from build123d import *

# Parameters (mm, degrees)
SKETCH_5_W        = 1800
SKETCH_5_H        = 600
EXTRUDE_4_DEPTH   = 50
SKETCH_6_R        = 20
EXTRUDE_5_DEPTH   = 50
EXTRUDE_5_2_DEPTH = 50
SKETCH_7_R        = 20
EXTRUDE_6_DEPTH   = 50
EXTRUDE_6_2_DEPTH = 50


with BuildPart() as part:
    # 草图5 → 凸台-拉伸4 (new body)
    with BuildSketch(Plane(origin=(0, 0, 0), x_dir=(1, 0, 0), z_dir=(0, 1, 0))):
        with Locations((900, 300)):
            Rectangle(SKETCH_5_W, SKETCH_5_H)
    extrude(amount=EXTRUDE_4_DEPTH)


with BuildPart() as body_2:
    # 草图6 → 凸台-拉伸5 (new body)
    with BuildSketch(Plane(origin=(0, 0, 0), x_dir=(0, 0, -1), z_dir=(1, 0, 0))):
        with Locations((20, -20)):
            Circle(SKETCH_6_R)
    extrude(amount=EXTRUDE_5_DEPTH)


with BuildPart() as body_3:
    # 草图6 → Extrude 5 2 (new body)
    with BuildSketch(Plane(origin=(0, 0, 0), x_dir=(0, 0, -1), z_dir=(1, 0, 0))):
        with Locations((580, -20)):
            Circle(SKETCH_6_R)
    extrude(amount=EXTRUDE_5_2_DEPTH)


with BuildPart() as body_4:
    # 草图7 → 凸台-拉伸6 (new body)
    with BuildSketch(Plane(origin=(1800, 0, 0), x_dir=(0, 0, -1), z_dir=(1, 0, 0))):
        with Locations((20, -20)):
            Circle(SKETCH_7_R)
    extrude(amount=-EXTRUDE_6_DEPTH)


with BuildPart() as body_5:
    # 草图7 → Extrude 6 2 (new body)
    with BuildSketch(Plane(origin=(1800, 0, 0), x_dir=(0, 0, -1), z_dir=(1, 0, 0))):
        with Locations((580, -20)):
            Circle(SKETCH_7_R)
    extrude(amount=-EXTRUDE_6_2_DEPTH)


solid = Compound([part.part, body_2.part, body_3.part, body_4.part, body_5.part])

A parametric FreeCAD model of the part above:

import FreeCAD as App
import Part
import Sketcher

V = App.Vector

doc = App.newDocument("Part")
body = doc.addObject("PartDesign::Body", "Body")

# Sketch on XZ plane
sketch1 = doc.addObject("Sketcher::SketchObject", "Sketch")
body.addObject(sketch1)
sketch1.AttachmentSupport = (doc.XZ_Plane, [""])
sketch1.MapMode = "FlatFace"
sketch1.addGeometry([
    Part.LineSegment(V(0, -600, 0), V(0, 0, 0)),
    Part.LineSegment(V(0, 0, 0), V(1800, 0, 0)),
    Part.LineSegment(V(1800, 0, 0), V(1800, -600, 0)),
    Part.LineSegment(V(1800, -600, 0), V(0, -600, 0)),
], False)
sketch1.addConstraint([
    Sketcher.Constraint("Coincident", 0, 2, 1, 1),
    Sketcher.Constraint("Coincident", 1, 2, 2, 1),
    Sketcher.Constraint("Coincident", 2, 2, 3, 1),
    Sketcher.Constraint("Coincident", 3, 2, 0, 1),
    Sketcher.Constraint("Vertical", 0),
    Sketcher.Constraint("Horizontal", 1),
    Sketcher.Constraint("Vertical", 2),
    Sketcher.Constraint("Horizontal", 3),
    Sketcher.Constraint("Coincident", 0, 2, -1, 1),
    Sketcher.Constraint("DistanceX", 1, 1, 1, 2, 1800.0),
    Sketcher.Constraint("DistanceY", 0, 1, 0, 2, 600.0),
])
pad1 = doc.addObject("PartDesign::Pad", "Pad")
body.addObject(pad1)
pad1.Profile = sketch1
pad1.Length = 50
pad1.Reversed = True
body2 = doc.addObject("PartDesign::Body", "Body001")

# Sketch on YZ plane
sketch2 = doc.addObject("Sketcher::SketchObject", "Sketch001")
body2.addObject(sketch2)
sketch2.AttachmentSupport = (doc.getObject("YZ_Plane001"), [""])
sketch2.MapMode = "FlatFace"
sketch2.addGeometry(Part.Circle(V(-20, -20, 0), V(0, 0, 1), 20), False)
sketch2.addConstraint([
    Sketcher.Constraint("Diameter", 0, 40.0),
    Sketcher.Constraint("DistanceX", 0, 3, -1, 1, 20.0),
    Sketcher.Constraint("DistanceY", 0, 3, -1, 1, 20.0),
])
pad2 = doc.addObject("PartDesign::Pad", "Pad001")
body2.addObject(pad2)
pad2.Profile = sketch2
pad2.Length = 50
body3 = doc.addObject("PartDesign::Body", "Body002")

# Sketch on YZ plane
sketch3 = doc.addObject("Sketcher::SketchObject", "Sketch002")
body3.addObject(sketch3)
sketch3.AttachmentSupport = (doc.getObject("YZ_Plane002"), [""])
sketch3.MapMode = "FlatFace"
sketch3.addGeometry(Part.Circle(V(-20, -580, 0), V(0, 0, 1), 20), False)
sketch3.addConstraint([
    Sketcher.Constraint("Diameter", 0, 40.0),
    Sketcher.Constraint("DistanceX", 0, 3, -1, 1, 20.0),
    Sketcher.Constraint("DistanceY", 0, 3, -1, 1, 580.0),
])
pad3 = doc.addObject("PartDesign::Pad", "Pad002")
body3.addObject(pad3)
pad3.Profile = sketch3
pad3.Length = 50
body4 = doc.addObject("PartDesign::Body", "Body003")

# Sketch on YZ plane
sketch4 = doc.addObject("Sketcher::SketchObject", "Sketch003")
body4.addObject(sketch4)
sketch4.AttachmentSupport = (doc.getObject("YZ_Plane003"), [""])
sketch4.MapMode = "FlatFace"
sketch4.AttachmentOffset = App.Placement(V(0, 0, 1800), App.Rotation())
sketch4.addGeometry(Part.Circle(V(-20, -20, 0), V(0, 0, 1), 20), False)
sketch4.addConstraint([
    Sketcher.Constraint("Diameter", 0, 40.0),
    Sketcher.Constraint("DistanceX", 0, 3, -1, 1, 20.0),
    Sketcher.Constraint("DistanceY", 0, 3, -1, 1, 20.0),
])
pad4 = doc.addObject("PartDesign::Pad", "Pad003")
body4.addObject(pad4)
pad4.Profile = sketch4
pad4.Length = 50
pad4.Reversed = True
body5 = doc.addObject("PartDesign::Body", "Body004")

# Sketch on YZ plane
sketch5 = doc.addObject("Sketcher::SketchObject", "Sketch004")
body5.addObject(sketch5)
sketch5.AttachmentSupport = (doc.getObject("YZ_Plane004"), [""])
sketch5.MapMode = "FlatFace"
sketch5.AttachmentOffset = App.Placement(V(0, 0, 1800), App.Rotation())
sketch5.addGeometry(Part.Circle(V(-20, -580, 0), V(0, 0, 1), 20), False)
sketch5.addConstraint([
    Sketcher.Constraint("Diameter", 0, 40.0),
    Sketcher.Constraint("DistanceX", 0, 3, -1, 1, 20.0),
    Sketcher.Constraint("DistanceY", 0, 3, -1, 1, 580.0),
])
pad5 = doc.addObject("PartDesign::Pad", "Pad004")
body5.addObject(pad5)
pad5.Profile = sketch5
pad5.Length = 50
pad5.Reversed = True

doc.recompute()
